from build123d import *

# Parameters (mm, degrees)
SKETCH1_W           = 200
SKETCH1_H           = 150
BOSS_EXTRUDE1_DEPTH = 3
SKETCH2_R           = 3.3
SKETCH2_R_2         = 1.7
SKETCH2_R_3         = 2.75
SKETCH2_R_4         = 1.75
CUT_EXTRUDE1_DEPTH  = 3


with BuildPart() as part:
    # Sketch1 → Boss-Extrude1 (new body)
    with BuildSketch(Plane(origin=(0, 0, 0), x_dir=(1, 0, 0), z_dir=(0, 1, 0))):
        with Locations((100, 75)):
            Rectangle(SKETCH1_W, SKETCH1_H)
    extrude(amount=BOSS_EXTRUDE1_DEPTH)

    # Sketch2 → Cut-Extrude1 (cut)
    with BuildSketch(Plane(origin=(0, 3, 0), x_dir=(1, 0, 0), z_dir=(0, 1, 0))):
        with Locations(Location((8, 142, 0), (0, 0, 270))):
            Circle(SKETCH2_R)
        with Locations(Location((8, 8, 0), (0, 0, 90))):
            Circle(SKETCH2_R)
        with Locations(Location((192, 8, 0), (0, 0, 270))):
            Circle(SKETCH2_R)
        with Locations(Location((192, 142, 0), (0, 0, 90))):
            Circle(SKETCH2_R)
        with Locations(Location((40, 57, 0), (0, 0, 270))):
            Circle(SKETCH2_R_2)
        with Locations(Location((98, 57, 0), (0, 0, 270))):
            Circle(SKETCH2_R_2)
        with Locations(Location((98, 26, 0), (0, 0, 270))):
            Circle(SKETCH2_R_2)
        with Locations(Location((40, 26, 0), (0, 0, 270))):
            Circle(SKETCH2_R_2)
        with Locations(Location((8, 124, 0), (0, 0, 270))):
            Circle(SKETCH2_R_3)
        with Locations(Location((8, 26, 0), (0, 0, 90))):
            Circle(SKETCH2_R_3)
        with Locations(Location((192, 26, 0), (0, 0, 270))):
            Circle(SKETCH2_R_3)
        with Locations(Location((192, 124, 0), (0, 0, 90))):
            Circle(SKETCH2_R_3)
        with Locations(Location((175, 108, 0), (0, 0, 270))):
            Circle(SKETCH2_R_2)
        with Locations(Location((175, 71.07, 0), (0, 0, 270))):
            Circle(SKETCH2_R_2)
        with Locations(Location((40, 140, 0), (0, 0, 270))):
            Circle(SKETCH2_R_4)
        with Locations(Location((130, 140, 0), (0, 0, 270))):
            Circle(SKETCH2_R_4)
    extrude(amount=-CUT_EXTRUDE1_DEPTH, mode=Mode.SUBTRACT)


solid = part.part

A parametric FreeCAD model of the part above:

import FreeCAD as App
import Part
import Sketcher

V = App.Vector
Q = App.Units.Quantity

doc = App.newDocument("Part")
body = doc.addObject("PartDesign::Body", "Body")

sketch1 = doc.addObject("Sketcher::SketchObject", "Sketch")
body.addObject(sketch1)
sketch1.AttachmentSupport = (doc.XZ_Plane, [""])
sketch1.MapMode = "FlatFace"
sketch1.addGeometry(Part.LineSegment(V(0, -150, 0), V(0, 0, 0)), False)
sketch1.addGeometry(Part.LineSegment(V(0, 0, 0), V(200, 0, 0)), False)
sketch1.addGeometry(Part.LineSegment(V(200, 0, 0), V(200, -150, 0)), False)
sketch1.addGeometry(Part.LineSegment(V(200, -150, 0), V(0, -150, 0)), False)
sketch1.addConstraint(Sketcher.Constraint("Coincident", 0, 2, 1, 1))
sketch1.addConstraint(Sketcher.Constraint("Coincident", 1, 2, 2, 1))
sketch1.addConstraint(Sketcher.Constraint("Coincident", 2, 2, 3, 1))
sketch1.addConstraint(Sketcher.Constraint("Coincident", 3, 2, 0, 1))
sketch1.addConstraint(Sketcher.Constraint("Vertical", 0))
sketch1.addConstraint(Sketcher.Constraint("Horizontal", 1))
sketch1.addConstraint(Sketcher.Constraint("Vertical", 2))
sketch1.addConstraint(Sketcher.Constraint("Horizontal", 3))
sketch1.addConstraint(Sketcher.Constraint("Coincident", 0, 2, -1, 1))
sketch1.addConstraint(Sketcher.Constraint("DistanceX", 1, 1, 1, 2, Q("200 mm")))
sketch1.addConstraint(Sketcher.Constraint("DistanceY", 0, 1, 0, 2, Q("150 mm")))
pad1 = doc.addObject("PartDesign::Pad", "Pad")
body.addObject(pad1)
pad1.Profile = sketch1
pad1.Length = 3
pad1.Reversed = True

sketch2 = doc.addObject("Sketcher::SketchObject", "Sketch001")
body.addObject(sketch2)
sketch2.AttachmentSupport = (doc.XZ_Plane, [""])
sketch2.MapMode = "FlatFace"
sketch2.AttachmentOffset = App.Placement(V(0, 0, -3), App.Rotation())
sketch2.addGeometry(Part.Circle(V(8, -142, 0), V(0, 0, 1), 3.3), False)
sketch2.addGeometry(Part.Circle(V(8, -8, 0), V(0, 0, 1), 3.3), False)
sketch2.addGeometry(Part.Circle(V(192, -8, 0), V(0, 0, 1), 3.3), False)
sketch2.addGeometry(Part.Circle(V(192, -142, 0), V(0, 0, 1), 3.3), False)
sketch2.addGeometry(Part.Circle(V(40, -57, 0), V(0, 0, 1), 1.7), False)
sketch2.addGeometry(Part.Circle(V(98, -57, 0), V(0, 0, 1), 1.7), False)
sketch2.addGeometry(Part.Circle(V(98, -26, 0), V(0, 0, 1), 1.7), False)
sketch2.addGeometry(Part.Circle(V(40, -26, 0), V(0, 0, 1), 1.7), False)
sketch2.addGeometry(Part.Circle(V(8, -124, 0), V(0, 0, 1), 2.8), False)
sketch2.addGeometry(Part.Circle(V(8, -26, 0), V(0, 0, 1), 2.8), False)
sketch2.addGeometry(Part.Circle(V(192, -26, 0), V(0, 0, 1), 2.8), False)
sketch2.addGeometry(Part.Circle(V(192, -124, 0), V(0, 0, 1), 2.8), False)
sketch2.addGeometry(Part.Circle(V(175, -108, 0), V(0, 0, 1), 1.7), False)
sketch2.addGeometry(Part.Circle(V(175, -71.1, 0), V(0, 0, 1), 1.7), False)
sketch2.addGeometry(Part.Circle(V(40, -140, 0), V(0, 0, 1), 1.8), False)
sketch2.addGeometry(Part.Circle(V(130, -140, 0), V(0, 0, 1), 1.8), False)
sketch2.addConstraint(Sketcher.Constraint("Equal", 0, 1))
sketch2.addConstraint(Sketcher.Constraint("Equal", 1, 2))
sketch2.addConstraint(Sketcher.Constraint("Equal", 2, 3))
sketch2.addConstraint(Sketcher.Constraint("Equal", 4, 5))
sketch2.addConstraint(Sketcher.Constraint("Equal", 5, 6))
sketch2.addConstraint(Sketcher.Constraint("Equal", 6, 7))
sketch2.addConstraint(Sketcher.Constraint("Equal", 8, 9))
sketch2.addConstraint(Sketcher.Constraint("Equal", 9, 10))
sketch2.addConstraint(Sketcher.Constraint("Equal", 10, 11))
sketch2.addConstraint(Sketcher.Constraint("Equal", 7, 12))
sketch2.addConstraint(Sketcher.Constraint("Equal", 12, 13))
sketch2.addConstraint(Sketcher.Constraint("Equal", 14, 15))
sketch2.addConstraint(Sketcher.Constraint("Horizontal", 1, 3, 2, 3))
sketch2.addConstraint(Sketcher.Constraint("Horizontal", 0, 3, 3, 3))
sketch2.addConstraint(Sketcher.Constraint("Horizontal", 4, 3, 5, 3))
sketch2.addConstraint(Sketcher.Constraint("Horizontal", 6, 3, 7, 3))
sketch2.addConstraint(Sketcher.Constraint("Horizontal", 7, 3, 9, 3))
sketch2.addConstraint(Sketcher.Constraint("Horizontal", 9, 3, 10, 3))
sketch2.addConstraint(Sketcher.Constraint("Horizontal", 8, 3, 11, 3))
sketch2.addConstraint(Sketcher.Constraint("Horizontal", 14, 3, 15, 3))
sketch2.addConstraint(Sketcher.Constraint("Vertical", 0, 3, 1, 3))
sketch2.addConstraint(Sketcher.Constraint("Vertical", 2, 3, 3, 3))
sketch2.addConstraint(Sketcher.Constraint("Vertical", 5, 3, 6, 3))
sketch2.addConstraint(Sketcher.Constraint("Vertical", 4, 3, 7, 3))
sketch2.addConstraint(Sketcher.Constraint("Vertical", 1, 3, 8, 3))
sketch2.addConstraint(Sketcher.Constraint("Vertical", 8, 3, 9, 3))
sketch2.addConstraint(Sketcher.Constraint("Vertical", 3, 3, 10, 3))
sketch2.addConstraint(Sketcher.Constraint("Vertical", 10, 3, 11, 3))
sketch2.addConstraint(Sketcher.Constraint("Vertical", 12, 3, 13, 3))
sketch2.addConstraint(Sketcher.Constraint("Vertical", 7, 3, 14, 3))
sketch2.addConstraint(Sketcher.Constraint("Diameter", 0, Q("6.6 mm")))
sketch2.addConstraint(Sketcher.Constraint("Diameter", 4, Q("3.4 mm")))
sketch2.addConstraint(Sketcher.Constraint("Diameter", 8, Q("5.5 mm")))
sketch2.addConstraint(Sketcher.Constraint("Diameter", 14, Q("3.5 mm")))
sketch2.addConstraint(Sketcher.Constraint("DistanceX", -1, 1, 0, 3, Q("8 mm")))
sketch2.addConstraint(Sketcher.Constraint("DistanceY", 0, 3, -1, 1, Q("142 mm")))
sketch2.addConstraint(Sketcher.Constraint("DistanceY", 1, 3, -1, 1, Q("8 mm")))
sketch2.addConstraint(Sketcher.Constraint("DistanceX", -1, 1, 2, 3, Q("192 mm")))
sketch2.addConstraint(Sketcher.Constraint("DistanceX", -1, 1, 4, 3, Q("40 mm")))
sketch2.addConstraint(Sketcher.Constraint("DistanceY", 4, 3, -1, 1, Q("57 mm")))
sketch2.addConstraint(Sketcher.Constraint("DistanceX", -1, 1, 5, 3, Q("98 mm")))
sketch2.addConstraint(Sketcher.Constraint("DistanceY", 6, 3, -1, 1, Q("26 mm")))
sketch2.addConstraint(Sketcher.Constraint("DistanceY", 8, 3, -1, 1, Q("124 mm")))
sketch2.addConstraint(Sketcher.Constraint("DistanceX", -1, 1, 12, 3, Q("175 mm")))
sketch2.addConstraint(Sketcher.Constraint("DistanceY", 12, 3, -1, 1, Q("108 mm")))
sketch2.addConstraint(Sketcher.Constraint("DistanceY", 14, 3, -1, 1, Q("140 mm")))
sketch2.addConstraint(Sketcher.Constraint("DistanceX", -1, 1, 15, 3, Q("130 mm")))
sketch2.addConstraint(Sketcher.Constraint("DistanceY", 13, 3, -1, 1, Q("71.07 mm")))
pocket1 = doc.addObject("PartDesign::Pocket", "Pocket")
body.addObject(pocket1)
pocket1.Profile = sketch2
pocket1.Length = 3
pocket1.Reversed = True

doc.recompute()
